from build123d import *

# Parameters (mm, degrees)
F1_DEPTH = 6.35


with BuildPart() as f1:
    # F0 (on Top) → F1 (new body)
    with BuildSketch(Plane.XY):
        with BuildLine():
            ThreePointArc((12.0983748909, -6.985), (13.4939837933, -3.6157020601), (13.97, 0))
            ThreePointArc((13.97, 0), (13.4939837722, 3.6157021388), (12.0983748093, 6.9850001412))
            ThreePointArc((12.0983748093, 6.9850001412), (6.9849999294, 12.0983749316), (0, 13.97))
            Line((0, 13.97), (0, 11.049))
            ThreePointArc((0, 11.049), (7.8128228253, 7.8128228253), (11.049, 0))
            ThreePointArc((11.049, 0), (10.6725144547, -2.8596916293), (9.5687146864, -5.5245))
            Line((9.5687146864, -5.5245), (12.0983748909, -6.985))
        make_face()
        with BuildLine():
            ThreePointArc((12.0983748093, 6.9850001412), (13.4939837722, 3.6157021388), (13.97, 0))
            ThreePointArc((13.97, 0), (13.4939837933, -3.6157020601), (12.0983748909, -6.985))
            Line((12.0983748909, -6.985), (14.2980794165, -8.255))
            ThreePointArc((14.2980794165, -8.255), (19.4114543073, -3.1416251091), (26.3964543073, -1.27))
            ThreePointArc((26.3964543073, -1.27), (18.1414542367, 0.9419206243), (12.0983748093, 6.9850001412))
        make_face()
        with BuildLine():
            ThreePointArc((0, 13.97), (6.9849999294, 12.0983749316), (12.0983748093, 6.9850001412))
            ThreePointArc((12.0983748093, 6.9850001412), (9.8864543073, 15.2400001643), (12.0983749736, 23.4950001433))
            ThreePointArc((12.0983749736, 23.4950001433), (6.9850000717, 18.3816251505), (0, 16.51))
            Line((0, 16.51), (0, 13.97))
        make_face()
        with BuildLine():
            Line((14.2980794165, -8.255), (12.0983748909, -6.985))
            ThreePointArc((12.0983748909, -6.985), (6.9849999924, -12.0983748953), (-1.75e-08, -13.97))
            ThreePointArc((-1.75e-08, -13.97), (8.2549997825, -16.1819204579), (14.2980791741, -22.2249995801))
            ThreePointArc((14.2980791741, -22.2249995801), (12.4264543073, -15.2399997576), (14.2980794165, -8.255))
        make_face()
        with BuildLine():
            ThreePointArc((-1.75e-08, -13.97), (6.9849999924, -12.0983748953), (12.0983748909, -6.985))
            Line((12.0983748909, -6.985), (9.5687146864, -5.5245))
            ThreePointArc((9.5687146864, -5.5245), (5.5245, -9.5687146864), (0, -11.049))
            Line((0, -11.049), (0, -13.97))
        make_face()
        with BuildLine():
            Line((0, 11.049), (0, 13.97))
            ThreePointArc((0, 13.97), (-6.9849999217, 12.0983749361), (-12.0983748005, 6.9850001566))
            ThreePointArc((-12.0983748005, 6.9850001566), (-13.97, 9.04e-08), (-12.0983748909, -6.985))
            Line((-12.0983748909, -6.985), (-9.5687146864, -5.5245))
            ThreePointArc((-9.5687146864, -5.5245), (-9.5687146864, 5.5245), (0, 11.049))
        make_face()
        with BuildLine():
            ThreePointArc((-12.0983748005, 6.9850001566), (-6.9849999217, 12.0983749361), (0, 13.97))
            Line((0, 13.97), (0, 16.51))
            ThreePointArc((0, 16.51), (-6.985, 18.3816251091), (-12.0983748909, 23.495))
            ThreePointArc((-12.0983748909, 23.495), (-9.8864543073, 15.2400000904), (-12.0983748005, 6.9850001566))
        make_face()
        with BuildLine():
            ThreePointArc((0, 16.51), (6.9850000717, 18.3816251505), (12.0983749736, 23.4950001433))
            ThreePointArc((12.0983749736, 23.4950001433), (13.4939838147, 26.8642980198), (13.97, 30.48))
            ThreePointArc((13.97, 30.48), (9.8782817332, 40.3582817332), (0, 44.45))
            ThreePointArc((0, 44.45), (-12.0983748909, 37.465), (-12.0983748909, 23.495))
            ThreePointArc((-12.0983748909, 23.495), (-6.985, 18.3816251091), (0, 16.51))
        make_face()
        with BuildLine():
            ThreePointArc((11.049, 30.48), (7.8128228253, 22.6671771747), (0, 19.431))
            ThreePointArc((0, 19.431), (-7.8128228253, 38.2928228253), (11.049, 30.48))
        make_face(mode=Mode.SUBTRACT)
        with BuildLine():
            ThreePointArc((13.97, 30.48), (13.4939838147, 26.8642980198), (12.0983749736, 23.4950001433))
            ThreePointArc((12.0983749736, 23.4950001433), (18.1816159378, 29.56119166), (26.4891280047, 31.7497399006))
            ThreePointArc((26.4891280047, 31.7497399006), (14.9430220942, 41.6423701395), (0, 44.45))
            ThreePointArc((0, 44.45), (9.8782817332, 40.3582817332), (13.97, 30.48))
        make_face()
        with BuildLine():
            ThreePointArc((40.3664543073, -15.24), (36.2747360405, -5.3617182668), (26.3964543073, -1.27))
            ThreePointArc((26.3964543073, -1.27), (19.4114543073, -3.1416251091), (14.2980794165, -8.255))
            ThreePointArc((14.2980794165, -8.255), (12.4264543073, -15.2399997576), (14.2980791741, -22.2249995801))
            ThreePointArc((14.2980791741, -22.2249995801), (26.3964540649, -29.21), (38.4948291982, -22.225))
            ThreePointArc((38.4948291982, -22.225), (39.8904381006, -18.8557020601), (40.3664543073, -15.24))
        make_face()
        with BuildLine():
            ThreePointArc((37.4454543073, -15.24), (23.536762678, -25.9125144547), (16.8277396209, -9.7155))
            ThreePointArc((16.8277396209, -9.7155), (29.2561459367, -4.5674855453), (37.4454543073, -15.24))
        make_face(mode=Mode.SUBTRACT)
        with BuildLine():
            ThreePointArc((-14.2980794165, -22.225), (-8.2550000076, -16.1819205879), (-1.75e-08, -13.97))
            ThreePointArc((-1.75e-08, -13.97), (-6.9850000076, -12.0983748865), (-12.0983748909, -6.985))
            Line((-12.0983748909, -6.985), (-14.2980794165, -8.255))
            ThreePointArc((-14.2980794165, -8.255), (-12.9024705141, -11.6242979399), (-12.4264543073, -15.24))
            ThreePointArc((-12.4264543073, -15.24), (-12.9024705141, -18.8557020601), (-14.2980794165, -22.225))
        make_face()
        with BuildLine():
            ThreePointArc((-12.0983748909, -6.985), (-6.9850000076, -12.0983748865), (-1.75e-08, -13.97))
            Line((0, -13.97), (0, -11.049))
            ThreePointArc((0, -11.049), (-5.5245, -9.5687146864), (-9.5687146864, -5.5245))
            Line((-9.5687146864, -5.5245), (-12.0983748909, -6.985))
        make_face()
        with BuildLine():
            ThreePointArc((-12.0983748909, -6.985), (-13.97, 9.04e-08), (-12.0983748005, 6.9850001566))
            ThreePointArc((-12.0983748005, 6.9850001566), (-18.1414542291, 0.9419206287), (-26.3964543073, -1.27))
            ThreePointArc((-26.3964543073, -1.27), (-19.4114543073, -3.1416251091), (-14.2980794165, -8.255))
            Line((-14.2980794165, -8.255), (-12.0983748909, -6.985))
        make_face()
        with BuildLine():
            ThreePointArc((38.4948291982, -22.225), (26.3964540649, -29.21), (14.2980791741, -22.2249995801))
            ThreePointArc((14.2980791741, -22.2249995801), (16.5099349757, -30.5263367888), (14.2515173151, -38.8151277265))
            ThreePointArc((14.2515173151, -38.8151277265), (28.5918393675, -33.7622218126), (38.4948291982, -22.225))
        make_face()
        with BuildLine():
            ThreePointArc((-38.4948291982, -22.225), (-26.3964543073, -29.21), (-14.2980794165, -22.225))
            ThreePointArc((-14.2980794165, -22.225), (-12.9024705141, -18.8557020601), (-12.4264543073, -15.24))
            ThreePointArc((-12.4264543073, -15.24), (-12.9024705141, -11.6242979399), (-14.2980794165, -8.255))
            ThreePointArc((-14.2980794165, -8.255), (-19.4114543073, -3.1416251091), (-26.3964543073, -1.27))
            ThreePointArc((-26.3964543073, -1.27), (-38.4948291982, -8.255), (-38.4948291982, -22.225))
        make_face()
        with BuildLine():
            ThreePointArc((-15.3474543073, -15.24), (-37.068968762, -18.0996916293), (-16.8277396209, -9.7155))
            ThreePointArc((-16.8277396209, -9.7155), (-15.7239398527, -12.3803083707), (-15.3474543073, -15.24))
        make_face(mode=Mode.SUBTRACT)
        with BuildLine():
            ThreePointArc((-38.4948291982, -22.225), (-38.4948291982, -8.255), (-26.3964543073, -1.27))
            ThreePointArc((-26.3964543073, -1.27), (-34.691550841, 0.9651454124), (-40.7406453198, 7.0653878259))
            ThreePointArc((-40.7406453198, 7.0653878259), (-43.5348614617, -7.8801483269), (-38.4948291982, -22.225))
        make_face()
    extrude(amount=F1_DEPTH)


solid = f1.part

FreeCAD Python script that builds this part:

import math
import FreeCAD as App
import Part
import Sketcher
Q = App.Units.Quantity

doc = App.newDocument("Part")
params = doc.addObject("Spreadsheet::Sheet", "Params")
for row, (alias, value) in enumerate([
    ("sketch1_radius", "0.65 in"),
    ("sketch1_radius2", "0.55 in"),
    ("sketch1_radius3", "0.435 in"),
    ("pad1_length", "0.25 in"),
], start=1):
    params.set(f"A{row}", alias)
    params.set(f"B{row}", "=" + value)
    params.setAlias(f"B{row}", alias)

body = doc.addObject("PartDesign::Body", "Body")

sketch1 = body.newObject("Sketcher::SketchObject", "Sketch")
sketch1.AttachmentSupport = (doc.getObject("XY_Plane"), [""])
sketch1.MapMode = "FlatFace"
sketch1.addGeometry([
    Part.ArcOfCircle(Part.Circle(App.Vector(0, -30, 0), App.Vector(0, 0, 1), 17), math.radians(90), math.radians(150)),
    Part.ArcOfCircle(Part.Circle(App.Vector(0, -30, 0), App.Vector(0, 0, 1), 17), math.radians(30), math.radians(90)),
    Part.ArcOfCircle(Part.Circle(App.Vector(0, -30, 0), App.Vector(0, 0, 1), 17), math.radians(-30), math.radians(30)),
    Part.ArcOfCircle(Part.Circle(App.Vector(12, -9, 0), App.Vector(0, 0, 1), 29), math.radians(-86), math.radians(-26)),
    Part.ArcOfCircle(Part.Circle(App.Vector(26, -15, 0), App.Vector(0, 0, 1), 14), math.radians(-30), math.radians(0)),
    Part.ArcOfCircle(Part.Circle(App.Vector(26, -15, 0), App.Vector(0, 0, 1), 14), math.radians(0), math.radians(90)),
    Part.ArcOfCircle(Part.Circle(App.Vector(26, 15, 0), App.Vector(0, 0, 1), 17), math.radians(150), math.radians(270)),
    Part.ArcOfCircle(Part.Circle(App.Vector(26, 15, 0), App.Vector(0, 0, 1), 17), math.radians(90), math.radians(150)),
    Part.ArcOfCircle(Part.Circle(App.Vector(2, 15, 0), App.Vector(0, 0, 1), 29), math.radians(34), math.radians(94)),
    Part.ArcOfCircle(Part.Circle(App.Vector(0, 30, 0), App.Vector(0, 0, 1), 14), math.radians(90), math.radians(210)),
    Part.ArcOfCircle(Part.Circle(App.Vector(-26, 15, 0), App.Vector(0, 0, 1), 17), math.radians(-30), math.radians(30)),
    Part.ArcOfCircle(Part.Circle(App.Vector(-26, 15, 0), App.Vector(0, 0, 1), 17), math.radians(-90), math.radians(-30)),
    Part.ArcOfCircle(Part.Circle(App.Vector(-26, 15, 0), App.Vector(0, 0, 1), 17), math.radians(-150), math.radians(-90)),
    Part.ArcOfCircle(Part.Circle(App.Vector(-14, -6, 0), App.Vector(0, 0, 1), 29), math.radians(154), math.radians(214)),
    Part.ArcOfCircle(Part.Circle(App.Vector(-26, -15, 0), App.Vector(0, 0, 1), 14), math.radians(-150), math.radians(-30)),
    Part.ArcOfCircle(Part.Circle(App.Vector(-26, -15, 0), App.Vector(0, 0, 1), 11), math.radians(0), math.radians(30)),
    Part.ArcOfCircle(Part.Circle(App.Vector(-26, -15, 0), App.Vector(0, 0, 1), 11), math.radians(30), math.radians(360)),
    Part.ArcOfCircle(Part.Circle(App.Vector(26, -15, 0), App.Vector(0, 0, 1), 11), math.radians(0), math.radians(150)),
    Part.ArcOfCircle(Part.Circle(App.Vector(26, -15, 0), App.Vector(0, 0, 1), 11), math.radians(150), math.radians(360)),
    Part.ArcOfCircle(Part.Circle(App.Vector(0, 0, 0), App.Vector(0, 0, 1), 11), math.radians(0), math.radians(90)),
    Part.ArcOfCircle(Part.Circle(App.Vector(0, 0, 0), App.Vector(0, 0, 1), 11), math.radians(-30), math.radians(0)),
    Part.ArcOfCircle(Part.Circle(App.Vector(0, 0, 0), App.Vector(0, 0, 1), 11), math.radians(-90), math.radians(-30)),
    Part.ArcOfCircle(Part.Circle(App.Vector(0, 0, 0), App.Vector(0, 0, 1), 11), math.radians(-150), math.radians(-90)),
    Part.ArcOfCircle(Part.Circle(App.Vector(0, 0, 0), App.Vector(0, 0, 1), 11), math.radians(90), math.radians(210)),
    Part.ArcOfCircle(Part.Circle(App.Vector(0, 30, 0), App.Vector(0, 0, 1), 11), math.radians(0), math.radians(270)),
    Part.ArcOfCircle(Part.Circle(App.Vector(0, 30, 0), App.Vector(0, 0, 1), 11), math.radians(-90), math.radians(0)),
], False)
sketch1.addConstraint([
    Sketcher.Constraint("Tangent", 0, 1, 1, 2),
    Sketcher.Constraint("Tangent", 1, 1, 2, 2),
    Sketcher.Constraint("Coincident", 2, 1, 3, 1),
    Sketcher.Constraint("Coincident", 3, 2, 4, 1),
    Sketcher.Constraint("Tangent", 4, 2, 5, 1),
    Sketcher.Constraint("Tangent", 5, 2, 6, 2),
    Sketcher.Constraint("Tangent", 6, 1, 7, 2),
    Sketcher.Constraint("Coincident", 7, 1, 8, 1),
    Sketcher.Constraint("Coincident", 8, 2, 9, 1),
    Sketcher.Constraint("Tangent", 9, 2, 10, 2),
    Sketcher.Constraint("Tangent", 10, 1, 11, 2),
    Sketcher.Constraint("Tangent", 11, 1, 12, 2),
    Sketcher.Constraint("Coincident", 12, 1, 13, 1),
    Sketcher.Constraint("Coincident", 13, 2, 14, 1),
    Sketcher.Constraint("Tangent", 14, 2, 0, 2),
    Sketcher.Constraint("Tangent", 15, 1, 16, 2),
    Sketcher.Constraint("Coincident", 16, 1, 15, 2),
    Sketcher.Constraint("Tangent", 17, 1, 18, 2),
    Sketcher.Constraint("Coincident", 18, 1, 17, 2),
    Sketcher.Constraint("Tangent", 19, 1, 20, 2),
    Sketcher.Constraint("Tangent", 20, 1, 21, 2),
    Sketcher.Constraint("Tangent", 21, 1, 22, 2),
    Sketcher.Constraint("Tangent", 22, 1, 23, 2),
    Sketcher.Constraint("Tangent", 23, 1, 19, 2),
    Sketcher.Constraint("Tangent", 24, 1, 25, 2),
    Sketcher.Constraint("Coincident", 25, 1, 24, 2),
    Sketcher.Constraint("Coincident", 19, 3, -1, 1),
    Sketcher.Constraint("Coincident", 21, 3, -1, 1),
    Sketcher.Constraint("Coincident", 2, 3, 0, 3),
    Sketcher.Constraint("Coincident", 12, 3, 10, 3),
    Sketcher.Constraint("Coincident", 15, 3, 14, 3),
    Sketcher.Constraint("Coincident", 17, 3, 4, 3),
    Sketcher.Constraint("Coincident", 24, 3, 9, 3),
    Sketcher.Constraint("Equal", 4, 5),
    Sketcher.Constraint("Equal", 2, 6),
    Sketcher.Constraint("Equal", 6, 7),
    Sketcher.Constraint("Equal", 3, 8),
    Sketcher.Constraint("Equal", 5, 9),
    Sketcher.Constraint("Equal", 7, 10),
    Sketcher.Constraint("Equal", 8, 13),
    Sketcher.Constraint("Equal", 9, 14),
    Sketcher.Constraint("Equal", 16, 17),
    Sketcher.Constraint("Equal", 18, 19),
    Sketcher.Constraint("Equal", 23, 24),
    Sketcher.Constraint("Symmetric", 0, 3, 9, 3, -1, 1),
    Sketcher.Constraint("Symmetric", 4, 3, 10, 3, -1, 1),
    Sketcher.Constraint("Symmetric", 6, 3, 14, 3, -1, 1),
    Sketcher.Constraint("Symmetric", 6, 3, 10, 3, -2),
    Sketcher.Constraint("PointOnObject", 0, 1, -2),
    Sketcher.Constraint("PointOnObject", 8, 2, -2),
    Sketcher.Constraint("PointOnObject", 19, 1, -1),
    Sketcher.Constraint("PointOnObject", 21, 1, -2),
    Sketcher.Constraint("PointOnObject", 23, 1, -2),
    Sketcher.Constraint("PointOnObject", 25, 1, -2),
    Sketcher.Constraint("Horizontal", 1, 1, 3, 2),
    Sketcher.Constraint("Horizontal", 18, 3, 4, 2),
    Sketcher.Constraint("Horizontal", 6, 1, 9, 2),
    Sketcher.Constraint("Horizontal", 3, 2, 13, 2),
    Sketcher.Constraint("Horizontal", 13, 2, 14, 2),
    Sketcher.Constraint("Horizontal", 4, 2, 15, 1),
    Sketcher.Constraint("Horizontal", 15, 1, 17, 1),
    Sketcher.Constraint("Horizontal", 16, 1, 18, 1),
    Sketcher.Constraint("Horizontal", 20, 1, 22, 1),
    Sketcher.Constraint("Horizontal", 25, 3, 24, 1),
    Sketcher.Constraint("Vertical", 9, 2, 10, 1),
    Sketcher.Constraint("Vertical", 16, 3, 11, 1),
    Sketcher.Constraint("Radius", 0, Q("0.65 in")),
    Sketcher.Constraint("Radius", 4, Q("0.55 in")),
    Sketcher.Constraint("Radius", 15, Q("0.435 in")),
    Sketcher.Constraint("DistanceY", 0, 3, -1, 1, Q("1.2 in")),
    Sketcher.Constraint("DistanceY", 18, 1, 20, 1, Q("0.165 in")),
    Sketcher.Constraint("DistanceY", 16, 1, -1, 1, Q("0.3825 in")),
    Sketcher.Constraint("Radius", 3, 29.422113),
    Sketcher.Constraint("DistanceX", 10, 3, 13, 3, 12.1976),
    Sketcher.Constraint("DistanceY", 3, 3, -1, 1, 9.481151),
    Sketcher.Constraint("DistanceX", -1, 1, 8, 3, 2.222982),
])
sketch1.setExpression("Constraints[66]", "Params.sketch1_radius")
sketch1.setExpression("Constraints[67]", "Params.sketch1_radius2")
sketch1.setExpression("Constraints[68]", "Params.sketch1_radius3")
pad1 = body.newObject("PartDesign::Pad", "Pad")
pad1.Profile = sketch1
pad1.setExpression("Length", "Params.pad1_length")

doc.recompute()
